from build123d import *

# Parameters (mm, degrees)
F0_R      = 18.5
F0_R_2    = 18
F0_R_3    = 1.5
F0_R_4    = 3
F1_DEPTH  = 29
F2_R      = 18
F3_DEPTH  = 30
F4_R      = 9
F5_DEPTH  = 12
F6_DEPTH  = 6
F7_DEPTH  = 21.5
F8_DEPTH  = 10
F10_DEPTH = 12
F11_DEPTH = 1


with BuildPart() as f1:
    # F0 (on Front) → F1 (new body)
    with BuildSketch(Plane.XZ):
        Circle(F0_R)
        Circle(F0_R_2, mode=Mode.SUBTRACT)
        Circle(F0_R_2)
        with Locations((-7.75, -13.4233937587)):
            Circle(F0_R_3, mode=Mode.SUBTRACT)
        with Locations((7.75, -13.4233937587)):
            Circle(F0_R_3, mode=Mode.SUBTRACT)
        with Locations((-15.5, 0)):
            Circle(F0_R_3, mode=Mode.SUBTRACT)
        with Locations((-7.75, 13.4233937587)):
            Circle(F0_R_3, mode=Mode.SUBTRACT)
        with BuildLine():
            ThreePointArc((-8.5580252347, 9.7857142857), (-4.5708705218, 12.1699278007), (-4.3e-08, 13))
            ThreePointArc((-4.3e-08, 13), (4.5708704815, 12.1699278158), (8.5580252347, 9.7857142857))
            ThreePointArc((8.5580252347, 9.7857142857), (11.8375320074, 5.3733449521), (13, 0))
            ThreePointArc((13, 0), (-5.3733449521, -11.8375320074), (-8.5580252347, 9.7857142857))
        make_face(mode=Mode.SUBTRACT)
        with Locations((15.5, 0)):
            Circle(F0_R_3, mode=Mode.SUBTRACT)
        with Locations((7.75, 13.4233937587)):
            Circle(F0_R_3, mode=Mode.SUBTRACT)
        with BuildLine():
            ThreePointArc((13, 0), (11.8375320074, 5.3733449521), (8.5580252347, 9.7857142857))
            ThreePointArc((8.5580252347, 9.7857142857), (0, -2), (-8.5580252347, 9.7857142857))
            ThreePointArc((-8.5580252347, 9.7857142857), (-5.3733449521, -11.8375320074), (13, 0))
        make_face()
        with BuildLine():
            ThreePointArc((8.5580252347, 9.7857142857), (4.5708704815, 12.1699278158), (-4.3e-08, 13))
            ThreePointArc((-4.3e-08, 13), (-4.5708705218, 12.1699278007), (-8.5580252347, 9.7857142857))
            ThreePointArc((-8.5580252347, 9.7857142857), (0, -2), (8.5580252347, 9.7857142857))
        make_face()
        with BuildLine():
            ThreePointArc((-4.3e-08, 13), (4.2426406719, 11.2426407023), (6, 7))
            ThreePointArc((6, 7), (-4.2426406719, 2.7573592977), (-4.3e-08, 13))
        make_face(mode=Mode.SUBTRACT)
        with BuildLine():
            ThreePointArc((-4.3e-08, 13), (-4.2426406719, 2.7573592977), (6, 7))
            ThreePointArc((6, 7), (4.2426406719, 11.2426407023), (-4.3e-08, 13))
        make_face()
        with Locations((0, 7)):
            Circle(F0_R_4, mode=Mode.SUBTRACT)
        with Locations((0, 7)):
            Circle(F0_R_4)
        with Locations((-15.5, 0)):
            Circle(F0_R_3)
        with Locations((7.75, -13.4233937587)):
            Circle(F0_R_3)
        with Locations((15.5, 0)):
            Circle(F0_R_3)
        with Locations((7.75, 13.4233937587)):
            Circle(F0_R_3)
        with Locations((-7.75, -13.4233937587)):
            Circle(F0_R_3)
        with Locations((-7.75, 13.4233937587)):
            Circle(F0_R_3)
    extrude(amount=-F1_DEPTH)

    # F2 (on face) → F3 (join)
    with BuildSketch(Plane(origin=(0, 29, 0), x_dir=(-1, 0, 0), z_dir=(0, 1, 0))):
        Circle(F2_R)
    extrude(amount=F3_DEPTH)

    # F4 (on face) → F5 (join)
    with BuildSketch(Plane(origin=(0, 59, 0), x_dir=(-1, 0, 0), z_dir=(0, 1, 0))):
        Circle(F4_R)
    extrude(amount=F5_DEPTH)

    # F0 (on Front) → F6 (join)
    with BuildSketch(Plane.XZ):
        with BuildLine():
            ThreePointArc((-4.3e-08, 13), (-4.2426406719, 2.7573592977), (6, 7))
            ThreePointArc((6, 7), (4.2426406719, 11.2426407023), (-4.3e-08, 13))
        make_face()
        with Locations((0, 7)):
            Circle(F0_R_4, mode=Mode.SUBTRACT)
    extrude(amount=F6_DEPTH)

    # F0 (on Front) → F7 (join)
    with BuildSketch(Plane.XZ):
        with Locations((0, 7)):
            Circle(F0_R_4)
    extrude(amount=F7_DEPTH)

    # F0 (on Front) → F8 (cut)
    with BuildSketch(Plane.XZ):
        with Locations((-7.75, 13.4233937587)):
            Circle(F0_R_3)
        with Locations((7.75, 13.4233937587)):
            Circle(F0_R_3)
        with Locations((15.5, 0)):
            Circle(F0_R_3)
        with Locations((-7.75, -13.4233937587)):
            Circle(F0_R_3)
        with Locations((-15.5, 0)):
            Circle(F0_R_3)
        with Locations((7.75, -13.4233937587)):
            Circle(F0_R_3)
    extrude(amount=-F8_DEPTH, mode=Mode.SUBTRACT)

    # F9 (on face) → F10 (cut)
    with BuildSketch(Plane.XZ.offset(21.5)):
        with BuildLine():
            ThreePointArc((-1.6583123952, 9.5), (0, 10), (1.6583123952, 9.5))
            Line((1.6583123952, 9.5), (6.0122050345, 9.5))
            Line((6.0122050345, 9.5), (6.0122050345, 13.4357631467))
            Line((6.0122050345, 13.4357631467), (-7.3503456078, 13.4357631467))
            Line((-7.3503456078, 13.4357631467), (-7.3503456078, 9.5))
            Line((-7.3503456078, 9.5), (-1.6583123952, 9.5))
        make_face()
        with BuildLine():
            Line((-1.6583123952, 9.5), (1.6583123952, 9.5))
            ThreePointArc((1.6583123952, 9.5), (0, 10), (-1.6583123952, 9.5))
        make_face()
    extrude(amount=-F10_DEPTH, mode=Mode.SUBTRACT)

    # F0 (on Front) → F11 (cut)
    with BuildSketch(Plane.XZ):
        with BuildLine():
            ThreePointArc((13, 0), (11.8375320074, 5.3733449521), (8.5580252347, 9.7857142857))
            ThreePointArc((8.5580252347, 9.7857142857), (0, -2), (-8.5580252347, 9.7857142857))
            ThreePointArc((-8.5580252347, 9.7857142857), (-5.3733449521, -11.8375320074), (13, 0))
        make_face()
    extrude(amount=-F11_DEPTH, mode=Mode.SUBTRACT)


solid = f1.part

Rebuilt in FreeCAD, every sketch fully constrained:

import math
import FreeCAD as App
import Part
import Sketcher

V = App.Vector
Q = App.Units.Quantity


def add_polygon(sketch, points):
    """Adds a closed chain of lines whose ends are joined by coincident constraints."""
    first, n = sketch.GeometryCount, len(points)
    for a, b in zip(points, points[1:] + points[:1]):
        sketch.addGeometry(Part.LineSegment(App.Vector(*a, 0), App.Vector(*b, 0)), False)
    for i in range(n):
        sketch.addConstraint(Sketcher.Constraint("Coincident", first + i, 2, first + (i + 1) % n, 1))

doc = App.newDocument("Part")
body = doc.addObject("PartDesign::Body", "Body")

# Sketch on XZ plane
sketch1 = doc.addObject("Sketcher::SketchObject", "Sketch")
body.addObject(sketch1)
sketch1.AttachmentSupport = (doc.XZ_Plane, [""])
sketch1.MapMode = "FlatFace"
sketch1.addGeometry(Part.Circle(V(0, 0, 0), V(0, 0, 1), 18), False)
sketch1.addConstraint(Sketcher.Constraint("Coincident", 0, 3, -1, 1))
sketch1.addConstraint(Sketcher.Constraint("Diameter", 0, Q("37 mm")))
pad1 = doc.addObject("PartDesign::Pad", "Pad")
body.addObject(pad1)
pad1.Profile = sketch1
pad1.Length = 29
pad1.Reversed = True

# Sketch on XZ plane
sketch2 = doc.addObject("Sketcher::SketchObject", "Sketch001")
body.addObject(sketch2)
sketch2.AttachmentSupport = (doc.XZ_Plane, [""])
sketch2.MapMode = "FlatFace"
sketch2.AttachmentOffset = App.Placement(V(0, 0, -29), App.Rotation())
sketch2.addGeometry(Part.Circle(V(0, 0, 0), V(0, 0, 1), 18), False)
sketch2.addConstraint(Sketcher.Constraint("Coincident", 0, 3, -1, 1))
sketch2.addConstraint(Sketcher.Constraint("Diameter", 0, Q("36 mm")))
pad2 = doc.addObject("PartDesign::Pad", "Pad001")
body.addObject(pad2)
pad2.Profile = sketch2
pad2.Length = 30
pad2.Reversed = True

# Sketch on XZ plane
sketch3 = doc.addObject("Sketcher::SketchObject", "Sketch002")
body.addObject(sketch3)
sketch3.AttachmentSupport = (doc.XZ_Plane, [""])
sketch3.MapMode = "FlatFace"
sketch3.AttachmentOffset = App.Placement(V(0, 0, -59), App.Rotation())
sketch3.addGeometry(Part.Circle(V(0, 0, 0), V(0, 0, 1), 9), False)
sketch3.addConstraint(Sketcher.Constraint("Coincident", 0, 3, -1, 1))
sketch3.addConstraint(Sketcher.Constraint("Diameter", 0, Q("18 mm")))
pad3 = doc.addObject("PartDesign::Pad", "Pad002")
body.addObject(pad3)
pad3.Profile = sketch3
pad3.Length = 12
pad3.Reversed = True

# Sketch on XZ plane
sketch4 = doc.addObject("Sketcher::SketchObject", "Sketch003")
body.addObject(sketch4)
sketch4.AttachmentSupport = (doc.XZ_Plane, [""])
sketch4.MapMode = "FlatFace"
sketch4.addGeometry(Part.ArcOfCircle(Part.Circle(V(0, 7, 0), V(0, 0, 1), 6), math.radians(90), math.radians(360)), False)
sketch4.addGeometry(Part.ArcOfCircle(Part.Circle(V(0, 7, 0), V(0, 0, 1), 6), math.radians(0), math.radians(90)), False)
sketch4.addGeometry(Part.Circle(V(0, 7, 0), V(0, 0, 1), 3), False)
sketch4.addConstraint(Sketcher.Constraint("Tangent", 0, 1, 1, 2))
sketch4.addConstraint(Sketcher.Constraint("Coincident", 1, 1, 0, 2))
sketch4.addConstraint(Sketcher.Constraint("Coincident", 2, 3, 0, 3))
sketch4.addConstraint(Sketcher.Constraint("PointOnObject", 0, 3, -2))
sketch4.addConstraint(Sketcher.Constraint("PointOnObject", 0, 1, -2))
sketch4.addConstraint(Sketcher.Constraint("Horizontal", 2, 3, 1, 1))
sketch4.addConstraint(Sketcher.Constraint("Diameter", 2, Q("6 mm")))
sketch4.addConstraint(Sketcher.Constraint("Radius", 0, Q("6 mm")))
sketch4.addConstraint(Sketcher.Constraint("DistanceY", -1, 1, 0, 3, Q("7 mm")))
pad4 = doc.addObject("PartDesign::Pad", "Pad003")
body.addObject(pad4)
pad4.Profile = sketch4
pad4.Length = 6

# Sketch on XZ plane
sketch5 = doc.addObject("Sketcher::SketchObject", "Sketch004")
body.addObject(sketch5)
sketch5.AttachmentSupport = (doc.XZ_Plane, [""])
sketch5.MapMode = "FlatFace"
sketch5.addGeometry(Part.Circle(V(0, 7, 0), V(0, 0, 1), 3), False)
sketch5.addConstraint(Sketcher.Constraint("PointOnObject", 0, 3, -2))
sketch5.addConstraint(Sketcher.Constraint("Diameter", 0, Q("6 mm")))
sketch5.addConstraint(Sketcher.Constraint("DistanceY", -1, 1, 0, 3, Q("7 mm")))
pad5 = doc.addObject("PartDesign::Pad", "Pad004")
body.addObject(pad5)
pad5.Profile = sketch5
pad5.Length = 21.5

# Sketch on XZ plane
sketch6 = doc.addObject("Sketcher::SketchObject", "Sketch005")
body.addObject(sketch6)
sketch6.AttachmentSupport = (doc.XZ_Plane, [""])
sketch6.MapMode = "FlatFace"
sketch6.addGeometry(Part.Circle(V(-7.8, 13.4, 0), V(0, 0, 1), 1.5), False)
sketch6.addGeometry(Part.Circle(V(7.8, 13.4, 0), V(0, 0, 1), 1.5), False)
sketch6.addGeometry(Part.Circle(V(15.5, 0, 0), V(0, 0, 1), 1.5), False)
sketch6.addGeometry(Part.Circle(V(-7.8, -13.4, 0), V(0, 0, 1), 1.5), False)
sketch6.addGeometry(Part.Circle(V(-15.5, 0, 0), V(0, 0, 1), 1.5), False)
sketch6.addGeometry(Part.Circle(V(7.8, -13.4, 0), V(0, 0, 1), 1.5), False)
sketch6.addConstraint(Sketcher.Constraint("Equal", 0, 1))
sketch6.addConstraint(Sketcher.Constraint("Equal", 1, 2))
sketch6.addConstraint(Sketcher.Constraint("Equal", 2, 3))
sketch6.addConstraint(Sketcher.Constraint("Equal", 3, 4))
sketch6.addConstraint(Sketcher.Constraint("Equal", 4, 5))
sketch6.addConstraint(Sketcher.Constraint("Symmetric", 1, 3, 3, 3, -1, 1))
sketch6.addConstraint(Sketcher.Constraint("Symmetric", 2, 3, 4, 3, -1, 1))
sketch6.addConstraint(Sketcher.Constraint("Symmetric", 0, 3, 5, 3, -1, 1))
sketch6.addConstraint(Sketcher.Constraint("Symmetric", 0, 3, 1, 3, -2))
sketch6.addConstraint(Sketcher.Constraint("PointOnObject", 2, 3, -1))
sketch6.addConstraint(Sketcher.Constraint("Diameter", 0, Q("3 mm")))
sketch6.addConstraint(Sketcher.Constraint("DistanceX", 4, 3, 2, 3, Q("31 mm")))
sketch6.addConstraint(Sketcher.Constraint("DistanceX", 0, 3, 1, 3, Q("15.5 mm")))
sketch6.addConstraint(Sketcher.Constraint("DistanceY", -1, 1, 0, 3, Q("13.423394 mm")))
pocket1 = doc.addObject("PartDesign::Pocket", "Pocket")
body.addObject(pocket1)
pocket1.Profile = sketch6
pocket1.Length = 10

# Sketch on XZ plane
sketch7 = doc.addObject("Sketcher::SketchObject", "Sketch006")
body.addObject(sketch7)
sketch7.AttachmentSupport = (doc.XZ_Plane, [""])
sketch7.MapMode = "FlatFace"
sketch7.AttachmentOffset = App.Placement(V(0, 0, 21.5), App.Rotation())
add_polygon(sketch7, [(6, 9.5), (6, 13.4), (-7.4, 13.4), (-7.4, 9.5)])  # lines 0-3
sketch7.addConstraint(Sketcher.Constraint("Vertical", 0))
sketch7.addConstraint(Sketcher.Constraint("Horizontal", 1))
sketch7.addConstraint(Sketcher.Constraint("Vertical", 2))
sketch7.addConstraint(Sketcher.Constraint("Horizontal", 3))
sketch7.addConstraint(Sketcher.Constraint("DistanceY", -1, 1, 2, 2, Q("9.5 mm")))
sketch7.addConstraint(Sketcher.Constraint("DistanceX", 1, 2, 1, 1, Q("13.362551 mm")))
sketch7.addConstraint(Sketcher.Constraint("DistanceY", 0, 1, 0, 2, Q("3.935763 mm")))
sketch7.addConstraint(Sketcher.Constraint("DistanceX", -1, 1, 0, 2, Q("6.012205 mm")))
pocket2 = doc.addObject("PartDesign::Pocket", "Pocket001")
body.addObject(pocket2)
pocket2.Profile = sketch7
pocket2.Length = 12

# Sketch on XZ plane
sketch8 = doc.addObject("Sketcher::SketchObject", "Sketch007")
body.addObject(sketch8)
sketch8.AttachmentSupport = (doc.XZ_Plane, [""])
sketch8.MapMode = "FlatFace"
sketch8.addGeometry(Part.ArcOfCircle(Part.Circle(V(0, 0, 0), V(0, 0, 1), 13), math.radians(0), math.radians(49)), False)
sketch8.addGeometry(Part.ArcOfCircle(Part.Circle(V(0, 7, 0), V(0, 0, 1), 9), math.radians(162), math.radians(378)), False)
sketch8.addGeometry(Part.ArcOfCircle(Part.Circle(V(0, 0, 0), V(0, 0, 1), 13), math.radians(131), math.radians(360)), False)
sketch8.addConstraint(Sketcher.Constraint("Coincident", 0, 2, 1, 2))
sketch8.addConstraint(Sketcher.Constraint("Coincident", 1, 1, 2, 1))
sketch8.addConstraint(Sketcher.Constraint("Tangent", 2, 2, 0, 1))
sketch8.addConstraint(Sketcher.Constraint("Coincident", 0, 3, -1, 1))
sketch8.addConstraint(Sketcher.Constraint("Equal", 0, 2))
sketch8.addConstraint(Sketcher.Constraint("PointOnObject", 1, 3, -2))
sketch8.addConstraint(Sketcher.Constraint("PointOnObject", 2, 2, -1))
sketch8.addConstraint(Sketcher.Constraint("Radius", 0, Q("13 mm")))
sketch8.addConstraint(Sketcher.Constraint("Radius", 1, Q("9 mm")))
sketch8.addConstraint(Sketcher.Constraint("DistanceY", -1, 1, 1, 3, Q("7 mm")))
pocket3 = doc.addObject("PartDesign::Pocket", "Pocket002")
body.addObject(pocket3)
pocket3.Profile = sketch8
pocket3.Length = 1

doc.recompute()
